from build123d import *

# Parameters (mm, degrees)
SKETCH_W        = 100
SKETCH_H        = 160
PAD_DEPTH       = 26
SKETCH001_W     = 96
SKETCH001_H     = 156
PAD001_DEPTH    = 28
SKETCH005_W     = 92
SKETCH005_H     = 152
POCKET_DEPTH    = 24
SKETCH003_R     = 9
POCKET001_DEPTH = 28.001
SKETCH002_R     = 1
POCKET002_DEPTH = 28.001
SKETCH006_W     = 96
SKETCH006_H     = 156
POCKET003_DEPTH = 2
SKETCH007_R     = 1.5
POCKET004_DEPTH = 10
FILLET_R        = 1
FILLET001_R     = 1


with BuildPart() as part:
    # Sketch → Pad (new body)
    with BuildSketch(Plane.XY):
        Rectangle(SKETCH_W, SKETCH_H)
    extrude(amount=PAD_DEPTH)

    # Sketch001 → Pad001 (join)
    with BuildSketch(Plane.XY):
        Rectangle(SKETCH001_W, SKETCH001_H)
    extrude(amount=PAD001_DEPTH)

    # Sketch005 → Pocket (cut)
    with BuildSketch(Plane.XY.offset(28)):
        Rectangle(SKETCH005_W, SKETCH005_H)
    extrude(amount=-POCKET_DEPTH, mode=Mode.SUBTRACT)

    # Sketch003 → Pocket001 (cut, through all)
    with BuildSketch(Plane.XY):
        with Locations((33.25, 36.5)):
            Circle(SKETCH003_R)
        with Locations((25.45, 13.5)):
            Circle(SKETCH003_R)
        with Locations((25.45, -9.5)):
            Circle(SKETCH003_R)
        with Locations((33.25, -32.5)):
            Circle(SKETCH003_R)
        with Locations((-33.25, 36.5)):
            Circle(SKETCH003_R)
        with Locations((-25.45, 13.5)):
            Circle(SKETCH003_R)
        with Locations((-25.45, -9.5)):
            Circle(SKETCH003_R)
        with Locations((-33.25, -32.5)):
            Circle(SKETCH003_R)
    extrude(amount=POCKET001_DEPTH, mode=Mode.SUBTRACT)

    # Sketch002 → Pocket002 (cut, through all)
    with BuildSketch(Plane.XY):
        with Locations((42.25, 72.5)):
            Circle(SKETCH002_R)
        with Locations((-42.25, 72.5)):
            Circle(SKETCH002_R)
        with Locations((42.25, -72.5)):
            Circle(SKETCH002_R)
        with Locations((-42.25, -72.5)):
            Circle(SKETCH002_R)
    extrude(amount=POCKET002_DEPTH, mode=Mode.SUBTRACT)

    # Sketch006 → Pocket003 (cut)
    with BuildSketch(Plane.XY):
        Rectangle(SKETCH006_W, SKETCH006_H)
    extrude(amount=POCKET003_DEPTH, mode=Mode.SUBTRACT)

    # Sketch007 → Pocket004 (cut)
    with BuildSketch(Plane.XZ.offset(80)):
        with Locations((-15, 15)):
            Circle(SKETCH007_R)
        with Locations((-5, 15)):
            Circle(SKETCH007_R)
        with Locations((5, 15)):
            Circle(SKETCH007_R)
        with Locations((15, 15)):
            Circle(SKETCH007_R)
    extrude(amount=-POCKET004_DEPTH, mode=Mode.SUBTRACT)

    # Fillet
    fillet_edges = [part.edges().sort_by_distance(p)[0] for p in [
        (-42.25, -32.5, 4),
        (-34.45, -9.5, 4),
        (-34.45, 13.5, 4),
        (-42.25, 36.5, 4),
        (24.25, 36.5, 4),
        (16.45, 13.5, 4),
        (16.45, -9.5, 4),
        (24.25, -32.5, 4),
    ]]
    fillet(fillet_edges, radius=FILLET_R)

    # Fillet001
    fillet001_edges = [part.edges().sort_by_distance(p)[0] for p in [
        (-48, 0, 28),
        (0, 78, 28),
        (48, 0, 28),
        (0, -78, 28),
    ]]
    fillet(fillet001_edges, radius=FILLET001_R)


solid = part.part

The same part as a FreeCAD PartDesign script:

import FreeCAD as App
import Part
import Sketcher


def edges_at(feature, points):
    """Names of the edges that pass closest to the given points."""
    edges = feature.Shape.Edges
    near = lambda p: min(range(len(edges)), key=lambda i: edges[i].distToShape(Part.Vertex(*p))[0])
    return sorted({f"Edge{near(p) + 1}" for p in points})

doc = App.newDocument("Part")
body = doc.addObject("PartDesign::Body", "Body")

sketch1 = body.newObject("Sketcher::SketchObject", "Sketch")
sketch1.AttachmentSupport = (doc.getObject("XY_Plane"), [""])
sketch1.MapMode = "FlatFace"
sketch1.addGeometry([
    Part.LineSegment(App.Vector(-50, 80, 0), App.Vector(-50, -80, 0)),
    Part.LineSegment(App.Vector(-50, -80, 0), App.Vector(50, -80, 0)),
    Part.LineSegment(App.Vector(50, -80, 0), App.Vector(50, 80, 0)),
    Part.LineSegment(App.Vector(50, 80, 0), App.Vector(-50, 80, 0)),
], False)
sketch1.addConstraint([
    Sketcher.Constraint("Coincident", 0, 2, 1, 1),
    Sketcher.Constraint("Coincident", 1, 2, 2, 1),
    Sketcher.Constraint("Coincident", 2, 2, 3, 1),
    Sketcher.Constraint("Coincident", 3, 2, 0, 1),
    Sketcher.Constraint("Vertical", 0),
    Sketcher.Constraint("Horizontal", 1),
    Sketcher.Constraint("Vertical", 2),
    Sketcher.Constraint("Horizontal", 3),
    Sketcher.Constraint("Symmetric", 0, 2, 2, 2, -1, 1),
    Sketcher.Constraint("DistanceX", 1, 1, 1, 2, 100.0),
    Sketcher.Constraint("DistanceY", 0, 2, 0, 1, 160.0),
])
pad1 = body.newObject("PartDesign::Pad", "Pad")
pad1.Profile = sketch1
pad1.Length = 26

sketch2 = body.newObject("Sketcher::SketchObject", "Sketch001")
sketch2.AttachmentSupport = (doc.getObject("XY_Plane"), [""])
sketch2.MapMode = "FlatFace"
sketch2.addGeometry([
    Part.LineSegment(App.Vector(-48, 78, 0), App.Vector(-48, -78, 0)),
    Part.LineSegment(App.Vector(-48, -78, 0), App.Vector(48, -78, 0)),
    Part.LineSegment(App.Vector(48, -78, 0), App.Vector(48, 78, 0)),
    Part.LineSegment(App.Vector(48, 78, 0), App.Vector(-48, 78, 0)),
], False)
sketch2.addConstraint([
    Sketcher.Constraint("Coincident", 0, 2, 1, 1),
    Sketcher.Constraint("Coincident", 1, 2, 2, 1),
    Sketcher.Constraint("Coincident", 2, 2, 3, 1),
    Sketcher.Constraint("Coincident", 3, 2, 0, 1),
    Sketcher.Constraint("Vertical", 0),
    Sketcher.Constraint("Horizontal", 1),
    Sketcher.Constraint("Vertical", 2),
    Sketcher.Constraint("Horizontal", 3),
    Sketcher.Constraint("Symmetric", 0, 2, 2, 2, -1, 1),
    Sketcher.Constraint("DistanceX", 1, 1, 1, 2, 96.0),
    Sketcher.Constraint("DistanceY", 0, 2, 0, 1, 156.0),
])
pad2 = body.newObject("PartDesign::Pad", "Pad001")
pad2.Profile = sketch2
pad2.Length = 28

sketch3 = body.newObject("Sketcher::SketchObject", "Sketch002")
sketch3.AttachmentSupport = (doc.getObject("XY_Plane"), [""])
sketch3.MapMode = "FlatFace"
sketch3.AttachmentOffset = App.Placement(App.Vector(0, 0, 28), App.Rotation())
sketch3.addGeometry([
    Part.LineSegment(App.Vector(-46, 76, 0), App.Vector(-46, -76, 0)),
    Part.LineSegment(App.Vector(-46, -76, 0), App.Vector(46, -76, 0)),
    Part.LineSegment(App.Vector(46, -76, 0), App.Vector(46, 76, 0)),
    Part.LineSegment(App.Vector(46, 76, 0), App.Vector(-46, 76, 0)),
], False)
sketch3.addConstraint([
    Sketcher.Constraint("Coincident", 0, 2, 1, 1),
    Sketcher.Constraint("Coincident", 1, 2, 2, 1),
    Sketcher.Constraint("Coincident", 2, 2, 3, 1),
    Sketcher.Constraint("Coincident", 3, 2, 0, 1),
    Sketcher.Constraint("Vertical", 0),
    Sketcher.Constraint("Horizontal", 1),
    Sketcher.Constraint("Vertical", 2),
    Sketcher.Constraint("Horizontal", 3),
    Sketcher.Constraint("Symmetric", 0, 2, 2, 2, -1, 1),
    Sketcher.Constraint("DistanceX", 1, 1, 1, 2, 92.0),
    Sketcher.Constraint("DistanceY", 0, 2, 0, 1, 152.0),
])
pocket1 = body.newObject("PartDesign::Pocket", "Pocket")
pocket1.Profile = sketch3
pocket1.Length = 24

sketch4 = body.newObject("Sketcher::SketchObject", "Sketch003")
sketch4.AttachmentSupport = (doc.getObject("XY_Plane"), [""])
sketch4.MapMode = "FlatFace"
sketch4.addGeometry([
    Part.Circle(App.Vector(33, 36, 0), App.Vector(0, 0, 1), 9),
    Part.Circle(App.Vector(25, 14, 0), App.Vector(0, 0, 1), 9),
    Part.Circle(App.Vector(25, -10, 0), App.Vector(0, 0, 1), 9),
    Part.Circle(App.Vector(33, -32, 0), App.Vector(0, 0, 1), 9),
    Part.Circle(App.Vector(-33, 36, 0), App.Vector(0, 0, 1), 9),
    Part.Circle(App.Vector(-25, 14, 0), App.Vector(0, 0, 1), 9),
    Part.Circle(App.Vector(-25, -10, 0), App.Vector(0, 0, 1), 9),
    Part.Circle(App.Vector(-33, -32, 0), App.Vector(0, 0, 1), 9),
], False)
sketch4.addConstraint([
    Sketcher.Constraint("Equal", 0, 1),
    Sketcher.Constraint("Equal", 1, 2),
    Sketcher.Constraint("Equal", 2, 3),
    Sketcher.Constraint("Equal", 3, 4),
    Sketcher.Constraint("Equal", 4, 5),
    Sketcher.Constraint("Equal", 5, 6),
    Sketcher.Constraint("Equal", 6, 7),
    Sketcher.Constraint("Symmetric", 0, 3, 4, 3, -2),
    Sketcher.Constraint("Symmetric", 1, 3, 5, 3, -2),
    Sketcher.Constraint("Symmetric", 2, 3, 6, 3, -2),
    Sketcher.Constraint("Symmetric", 3, 3, 7, 3, -2),
    Sketcher.Constraint("Vertical", 1, 3, 2, 3),
    Sketcher.Constraint("Vertical", 0, 3, 3, 3),
    Sketcher.Constraint("Diameter", 0, 18.0),
    Sketcher.Constraint("DistanceY", 1, 3, 0, 3, 23.0),
    Sketcher.Constraint("DistanceY", 2, 3, 1, 3, 23.0),
    Sketcher.Constraint("DistanceY", 3, 3, 2, 3, 23.0),
    Sketcher.Constraint("DistanceY", -1, 1, 0, 3, 36.5),
    Sketcher.Constraint("DistanceX", 1, 3, 0, 3, 7.8),
    Sketcher.Constraint("DistanceX", 4, 3, 1, 3, 58.7),
])
pocket2 = body.newObject("PartDesign::Pocket", "Pocket001")
pocket2.Profile = sketch4
pocket2.Type = "ThroughAll"
pocket2.Reversed = True

sketch5 = body.newObject("Sketcher::SketchObject", "Sketch004")
sketch5.AttachmentSupport = (doc.getObject("XY_Plane"), [""])
sketch5.MapMode = "FlatFace"
sketch5.addGeometry([
    Part.Circle(App.Vector(42.2, 72.5, 0), App.Vector(0, 0, 1), 1),
    Part.Circle(App.Vector(-42.2, 72.5, 0), App.Vector(0, 0, 1), 1),
    Part.Circle(App.Vector(42.2, -72.5, 0), App.Vector(0, 0, 1), 1),
    Part.Circle(App.Vector(-42.2, -72.5, 0), App.Vector(0, 0, 1), 1),
], False)
sketch5.addConstraint([
    Sketcher.Constraint("Equal", 0, 1),
    Sketcher.Constraint("Equal", 1, 2),
    Sketcher.Constraint("Equal", 2, 3),
    Sketcher.Constraint("Symmetric", 1, 3, 2, 3, -1, 1),
    Sketcher.Constraint("Symmetric", 0, 3, 3, 3, -1, 1),
    Sketcher.Constraint("Symmetric", 0, 3, 1, 3, -2),
    Sketcher.Constraint("Diameter", 0, 2.0),
    Sketcher.Constraint("DistanceY", 2, 3, 0, 3, 145.0),
    Sketcher.Constraint("DistanceX", 1, 3, 0, 3, 84.5),
])
pocket3 = body.newObject("PartDesign::Pocket", "Pocket002")
pocket3.Profile = sketch5
pocket3.Type = "ThroughAll"
pocket3.Reversed = True

sketch6 = body.newObject("Sketcher::SketchObject", "Sketch005")
sketch6.AttachmentSupport = (doc.getObject("XY_Plane"), [""])
sketch6.MapMode = "FlatFace"
sketch6.addGeometry([
    Part.LineSegment(App.Vector(-48, 78, 0), App.Vector(-48, -78, 0)),
    Part.LineSegment(App.Vector(-48, -78, 0), App.Vector(48, -78, 0)),
    Part.LineSegment(App.Vector(48, -78, 0), App.Vector(48, 78, 0)),
    Part.LineSegment(App.Vector(48, 78, 0), App.Vector(-48, 78, 0)),
], False)
sketch6.addConstraint([
    Sketcher.Constraint("Coincident", 0, 2, 1, 1),
    Sketcher.Constraint("Coincident", 1, 2, 2, 1),
    Sketcher.Constraint("Coincident", 2, 2, 3, 1),
    Sketcher.Constraint("Coincident", 3, 2, 0, 1),
    Sketcher.Constraint("Vertical", 0),
    Sketcher.Constraint("Horizontal", 1),
    Sketcher.Constraint("Vertical", 2),
    Sketcher.Constraint("Horizontal", 3),
    Sketcher.Constraint("Symmetric", 0, 2, 2, 2, -1, 1),
    Sketcher.Constraint("DistanceX", 1, 1, 1, 2, 96.0),
    Sketcher.Constraint("DistanceY", 0, 2, 0, 1, 156.0),
])
pocket4 = body.newObject("PartDesign::Pocket", "Pocket003")
pocket4.Profile = sketch6
pocket4.Length = 2
pocket4.Reversed = True

sketch7 = body.newObject("Sketcher::SketchObject", "Sketch006")
sketch7.AttachmentSupport = (doc.getObject("XZ_Plane"), [""])
sketch7.MapMode = "FlatFace"
sketch7.AttachmentOffset = App.Placement(App.Vector(0, 0, 80), App.Rotation())
sketch7.addGeometry([
    Part.Circle(App.Vector(-15, 15, 0), App.Vector(0, 0, 1), 1.5),
    Part.Circle(App.Vector(-5, 15, 0), App.Vector(0, 0, 1), 1.5),
    Part.Circle(App.Vector(5, 15, 0), App.Vector(0, 0, 1), 1.5),
    Part.Circle(App.Vector(15, 15, 0), App.Vector(0, 0, 1), 1.5),
], False)
sketch7.addConstraint([
    Sketcher.Constraint("Equal", 0, 1),
    Sketcher.Constraint("Equal", 1, 2),
    Sketcher.Constraint("Equal", 2, 3),
    Sketcher.Constraint("Symmetric", 1, 3, 2, 3, -2),
    Sketcher.Constraint("Symmetric", 0, 3, 3, 3, -2),
    Sketcher.Constraint("Horizontal", 0, 3, 1, 3),
    Sketcher.Constraint("Diameter", 0, 3.0),
    Sketcher.Constraint("DistanceX", 0, 3, -1, 1, 15.0),
    Sketcher.Constraint("DistanceY", -1, 1, 0, 3, 15.0),
    Sketcher.Constraint("DistanceX", 1, 3, -1, 1, 5.0),
])
pocket5 = body.newObject("PartDesign::Pocket", "Pocket004")
pocket5.Profile = sketch7
pocket5.Length = 10
doc.recompute()

fillet = body.newObject("PartDesign::Fillet", "Fillet")
fillet.Base = (pocket5, edges_at(pocket5, [
    (-42.25, -32.5, 4),
    (-34.45, -9.5, 4),
    (-34.45, 13.5, 4),
    (-42.25, 36.5, 4),
    (24.25, 36.5, 4),
    (16.45, 13.5, 4),
    (16.45, -9.5, 4),
    (24.25, -32.5, 4),
]))
fillet.Radius = 1
doc.recompute()

fillet2 = body.newObject("PartDesign::Fillet", "Fillet001")
fillet2.Base = (fillet, edges_at(fillet, [
    (-48, 0, 28),
    (0, 78, 28),
    (48, 0, 28),
    (0, -78, 28),
]))
fillet2.Radius = 1

doc.recompute()
